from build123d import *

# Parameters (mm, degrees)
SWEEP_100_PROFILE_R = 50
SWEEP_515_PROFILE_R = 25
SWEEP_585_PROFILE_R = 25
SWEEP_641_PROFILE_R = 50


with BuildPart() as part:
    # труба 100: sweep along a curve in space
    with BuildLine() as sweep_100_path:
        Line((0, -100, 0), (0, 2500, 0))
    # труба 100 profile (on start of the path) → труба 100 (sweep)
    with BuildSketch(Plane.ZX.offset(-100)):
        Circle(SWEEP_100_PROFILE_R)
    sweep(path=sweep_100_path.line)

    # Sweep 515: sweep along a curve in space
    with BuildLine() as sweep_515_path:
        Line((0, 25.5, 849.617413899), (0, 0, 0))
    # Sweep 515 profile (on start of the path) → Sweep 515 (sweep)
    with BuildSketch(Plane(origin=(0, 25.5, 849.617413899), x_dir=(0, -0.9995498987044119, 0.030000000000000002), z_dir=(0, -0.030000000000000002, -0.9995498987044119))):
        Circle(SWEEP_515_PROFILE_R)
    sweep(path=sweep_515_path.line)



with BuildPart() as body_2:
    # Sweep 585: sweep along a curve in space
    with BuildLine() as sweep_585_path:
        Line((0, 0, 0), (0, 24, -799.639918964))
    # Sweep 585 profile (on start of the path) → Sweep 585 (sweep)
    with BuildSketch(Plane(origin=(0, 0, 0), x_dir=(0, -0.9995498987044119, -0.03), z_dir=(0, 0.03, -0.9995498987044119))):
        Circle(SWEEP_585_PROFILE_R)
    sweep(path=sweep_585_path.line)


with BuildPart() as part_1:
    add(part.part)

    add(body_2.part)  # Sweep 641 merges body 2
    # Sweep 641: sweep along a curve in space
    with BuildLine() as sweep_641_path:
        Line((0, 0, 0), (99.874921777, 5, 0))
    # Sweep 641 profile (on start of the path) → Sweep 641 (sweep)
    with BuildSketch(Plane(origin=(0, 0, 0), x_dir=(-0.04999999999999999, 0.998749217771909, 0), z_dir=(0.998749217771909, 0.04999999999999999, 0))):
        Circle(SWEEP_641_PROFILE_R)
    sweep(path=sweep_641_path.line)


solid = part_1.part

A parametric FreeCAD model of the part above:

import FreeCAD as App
import Part
import Sketcher
from FreeCAD import Vector
Q = App.Units.Quantity

doc = App.newDocument("Part")
body = doc.addObject("PartDesign::Body", "Body")

sketch1 = body.newObject("Sketcher::SketchObject", "Sketch")
sketch1.AttachmentSupport = (doc.getObject("XZ_Plane"), [""])
sketch1.MapMode = "FlatFace"
sketch1.AttachmentOffset = App.Placement(Vector(0, 0, 100), App.Rotation())
sketch1.addGeometry(Part.Circle(Vector(0, 0, 0), Vector(0, 0, 1), 50), False)
sketch1.addConstraint(Sketcher.Constraint("Coincident", 0, 3, -1, 1))
sketch1.addConstraint(Sketcher.Constraint("Diameter", 0, Q("100 mm")))

sketch2 = body.newObject("Sketcher::SketchObject", "Sketch001")
sketch2.AttachmentSupport = (doc.getObject("XY_Plane"), [""])
sketch2.MapMode = "FlatFace"
sketch2.addGeometry(Part.LineSegment(Vector(0, -100, 0), Vector(0, 2500, 0)), False)
sketch2.addConstraint(Sketcher.Constraint("Vertical", 0))
sketch2.addConstraint(Sketcher.Constraint("PointOnObject", 0, 1, -2))
sketch2.addConstraint(Sketcher.Constraint("DistanceY", 0, 1, 0, 2, Q("2600 mm")))
sketch2.addConstraint(Sketcher.Constraint("DistanceY", 0, 1, -1, 1, Q("100 mm")))
doc.recompute()

additivepipe = body.newObject("PartDesign::AdditivePipe", "AdditivePipe")
additivepipe.Profile = sketch1
additivepipe.Spine = (sketch2, ["Edge1"])

sketch3 = body.newObject("Sketcher::SketchObject", "Sketch002")
sketch3.Placement = App.Placement(Vector(0, 25.5, 849.617414), App.Rotation(Vector(0, -0.999549899, 0.03), Vector(-1.000000001, 0, 0), Vector(0, -0.03, -0.999549899), "ZXY"))
sketch3.addGeometry(Part.Circle(Vector(0, 0, 0), Vector(0, 0, 1), 25), False)
sketch3.addConstraint(Sketcher.Constraint("Coincident", 0, 3, -1, 1))
sketch3.addConstraint(Sketcher.Constraint("Diameter", 0, Q("50 mm")))

sketch4 = body.newObject("Sketcher::SketchObject", "Sketch003")
sketch4.Placement = App.Placement(Vector(0, 0, 0), App.Rotation(Vector(0, -0.03, -0.999549899), Vector(1.000000001, 0, 0), Vector(0, -0.999549899, 0.03), "ZXY"))
sketch4.addGeometry(Part.LineSegment(Vector(-850, 0, 0), Vector(0, 0, 0)), False)
sketch4.addConstraint(Sketcher.Constraint("Horizontal", 0))
sketch4.addConstraint(Sketcher.Constraint("Coincident", 0, 2, -1, 1))
sketch4.addConstraint(Sketcher.Constraint("DistanceX", 0, 1, 0, 2, Q("850.000001 mm")))
doc.recompute()

additivepipe2 = body.newObject("PartDesign::AdditivePipe", "AdditivePipe001")
additivepipe2.Profile = sketch3
additivepipe2.Spine = (sketch4, ["Edge1"])
body2 = doc.addObject("PartDesign::Body", "Body001")

sketch5 = body2.newObject("Sketcher::SketchObject", "Sketch004")
sketch5.Placement = App.Placement(Vector(0, 0, 0), App.Rotation(Vector(0, -0.999549899, -0.03), Vector(-1.000000001, 0, 0), Vector(0, 0.03, -0.999549899), "ZXY"))
sketch5.addGeometry(Part.Circle(Vector(0, 0, 0), Vector(0, 0, 1), 25), False)
sketch5.addConstraint(Sketcher.Constraint("Coincident", 0, 3, -1, 1))
sketch5.addConstraint(Sketcher.Constraint("Diameter", 0, Q("50 mm")))

sketch6 = body2.newObject("Sketcher::SketchObject", "Sketch005")
sketch6.Placement = App.Placement(Vector(0, 0, 0), App.Rotation(Vector(0, 0.03, -0.999549899), Vector(1.000000001, 0, 0), Vector(0, -0.999549899, -0.03), "ZXY"))
sketch6.addGeometry(Part.LineSegment(Vector(0, 0, 0), Vector(800, 0, 0)), False)
sketch6.addConstraint(Sketcher.Constraint("Horizontal", 0))
sketch6.addConstraint(Sketcher.Constraint("Coincident", 0, 1, -1, 1))
sketch6.addConstraint(Sketcher.Constraint("DistanceX", 0, 1, 0, 2, Q("800 mm")))
doc.recompute()

additivepipe3 = body2.newObject("PartDesign::AdditivePipe", "AdditivePipe002")
additivepipe3.Profile = sketch5
additivepipe3.Spine = (sketch6, ["Edge1"])
doc.recompute()

boolean = body.newObject("PartDesign::Boolean", "Boolean")
boolean.Type = "Fuse"
boolean.addObjects([body2])

sketch7 = body.newObject("Sketcher::SketchObject", "Sketch006")
sketch7.Placement = App.Placement(Vector(0, 0, 0), App.Rotation(Vector(-0.05, 0.998749218, 0), Vector(0, 0, 1), Vector(0.998749218, 0.05, 0), "ZXY"))
sketch7.addGeometry(Part.Circle(Vector(0, 0, 0), Vector(0, 0, 1), 50), False)
sketch7.addConstraint(Sketcher.Constraint("Coincident", 0, 3, -1, 1))
sketch7.addConstraint(Sketcher.Constraint("Diameter", 0, Q("100 mm")))

sketch8 = body.newObject("Sketcher::SketchObject", "Sketch007")
sketch8.Placement = App.Placement(Vector(0, 0, 0), App.Rotation(Vector(0.998749218, 0.05, 0), Vector(0, 0, 1), Vector(0.05, -0.998749218, 0), "ZXY"))
sketch8.addGeometry(Part.LineSegment(Vector(0, 0, 0), Vector(100, 0, 0)), False)
sketch8.addConstraint(Sketcher.Constraint("Horizontal", 0))
sketch8.addConstraint(Sketcher.Constraint("Coincident", 0, 1, -1, 1))
sketch8.addConstraint(Sketcher.Constraint("DistanceX", 0, 1, 0, 2, Q("100 mm")))
doc.recompute()

additivepipe4 = body.newObject("PartDesign::AdditivePipe", "AdditivePipe003")
additivepipe4.Profile = sketch7
additivepipe4.Spine = (sketch8, ["Edge1"])

doc.recompute()
